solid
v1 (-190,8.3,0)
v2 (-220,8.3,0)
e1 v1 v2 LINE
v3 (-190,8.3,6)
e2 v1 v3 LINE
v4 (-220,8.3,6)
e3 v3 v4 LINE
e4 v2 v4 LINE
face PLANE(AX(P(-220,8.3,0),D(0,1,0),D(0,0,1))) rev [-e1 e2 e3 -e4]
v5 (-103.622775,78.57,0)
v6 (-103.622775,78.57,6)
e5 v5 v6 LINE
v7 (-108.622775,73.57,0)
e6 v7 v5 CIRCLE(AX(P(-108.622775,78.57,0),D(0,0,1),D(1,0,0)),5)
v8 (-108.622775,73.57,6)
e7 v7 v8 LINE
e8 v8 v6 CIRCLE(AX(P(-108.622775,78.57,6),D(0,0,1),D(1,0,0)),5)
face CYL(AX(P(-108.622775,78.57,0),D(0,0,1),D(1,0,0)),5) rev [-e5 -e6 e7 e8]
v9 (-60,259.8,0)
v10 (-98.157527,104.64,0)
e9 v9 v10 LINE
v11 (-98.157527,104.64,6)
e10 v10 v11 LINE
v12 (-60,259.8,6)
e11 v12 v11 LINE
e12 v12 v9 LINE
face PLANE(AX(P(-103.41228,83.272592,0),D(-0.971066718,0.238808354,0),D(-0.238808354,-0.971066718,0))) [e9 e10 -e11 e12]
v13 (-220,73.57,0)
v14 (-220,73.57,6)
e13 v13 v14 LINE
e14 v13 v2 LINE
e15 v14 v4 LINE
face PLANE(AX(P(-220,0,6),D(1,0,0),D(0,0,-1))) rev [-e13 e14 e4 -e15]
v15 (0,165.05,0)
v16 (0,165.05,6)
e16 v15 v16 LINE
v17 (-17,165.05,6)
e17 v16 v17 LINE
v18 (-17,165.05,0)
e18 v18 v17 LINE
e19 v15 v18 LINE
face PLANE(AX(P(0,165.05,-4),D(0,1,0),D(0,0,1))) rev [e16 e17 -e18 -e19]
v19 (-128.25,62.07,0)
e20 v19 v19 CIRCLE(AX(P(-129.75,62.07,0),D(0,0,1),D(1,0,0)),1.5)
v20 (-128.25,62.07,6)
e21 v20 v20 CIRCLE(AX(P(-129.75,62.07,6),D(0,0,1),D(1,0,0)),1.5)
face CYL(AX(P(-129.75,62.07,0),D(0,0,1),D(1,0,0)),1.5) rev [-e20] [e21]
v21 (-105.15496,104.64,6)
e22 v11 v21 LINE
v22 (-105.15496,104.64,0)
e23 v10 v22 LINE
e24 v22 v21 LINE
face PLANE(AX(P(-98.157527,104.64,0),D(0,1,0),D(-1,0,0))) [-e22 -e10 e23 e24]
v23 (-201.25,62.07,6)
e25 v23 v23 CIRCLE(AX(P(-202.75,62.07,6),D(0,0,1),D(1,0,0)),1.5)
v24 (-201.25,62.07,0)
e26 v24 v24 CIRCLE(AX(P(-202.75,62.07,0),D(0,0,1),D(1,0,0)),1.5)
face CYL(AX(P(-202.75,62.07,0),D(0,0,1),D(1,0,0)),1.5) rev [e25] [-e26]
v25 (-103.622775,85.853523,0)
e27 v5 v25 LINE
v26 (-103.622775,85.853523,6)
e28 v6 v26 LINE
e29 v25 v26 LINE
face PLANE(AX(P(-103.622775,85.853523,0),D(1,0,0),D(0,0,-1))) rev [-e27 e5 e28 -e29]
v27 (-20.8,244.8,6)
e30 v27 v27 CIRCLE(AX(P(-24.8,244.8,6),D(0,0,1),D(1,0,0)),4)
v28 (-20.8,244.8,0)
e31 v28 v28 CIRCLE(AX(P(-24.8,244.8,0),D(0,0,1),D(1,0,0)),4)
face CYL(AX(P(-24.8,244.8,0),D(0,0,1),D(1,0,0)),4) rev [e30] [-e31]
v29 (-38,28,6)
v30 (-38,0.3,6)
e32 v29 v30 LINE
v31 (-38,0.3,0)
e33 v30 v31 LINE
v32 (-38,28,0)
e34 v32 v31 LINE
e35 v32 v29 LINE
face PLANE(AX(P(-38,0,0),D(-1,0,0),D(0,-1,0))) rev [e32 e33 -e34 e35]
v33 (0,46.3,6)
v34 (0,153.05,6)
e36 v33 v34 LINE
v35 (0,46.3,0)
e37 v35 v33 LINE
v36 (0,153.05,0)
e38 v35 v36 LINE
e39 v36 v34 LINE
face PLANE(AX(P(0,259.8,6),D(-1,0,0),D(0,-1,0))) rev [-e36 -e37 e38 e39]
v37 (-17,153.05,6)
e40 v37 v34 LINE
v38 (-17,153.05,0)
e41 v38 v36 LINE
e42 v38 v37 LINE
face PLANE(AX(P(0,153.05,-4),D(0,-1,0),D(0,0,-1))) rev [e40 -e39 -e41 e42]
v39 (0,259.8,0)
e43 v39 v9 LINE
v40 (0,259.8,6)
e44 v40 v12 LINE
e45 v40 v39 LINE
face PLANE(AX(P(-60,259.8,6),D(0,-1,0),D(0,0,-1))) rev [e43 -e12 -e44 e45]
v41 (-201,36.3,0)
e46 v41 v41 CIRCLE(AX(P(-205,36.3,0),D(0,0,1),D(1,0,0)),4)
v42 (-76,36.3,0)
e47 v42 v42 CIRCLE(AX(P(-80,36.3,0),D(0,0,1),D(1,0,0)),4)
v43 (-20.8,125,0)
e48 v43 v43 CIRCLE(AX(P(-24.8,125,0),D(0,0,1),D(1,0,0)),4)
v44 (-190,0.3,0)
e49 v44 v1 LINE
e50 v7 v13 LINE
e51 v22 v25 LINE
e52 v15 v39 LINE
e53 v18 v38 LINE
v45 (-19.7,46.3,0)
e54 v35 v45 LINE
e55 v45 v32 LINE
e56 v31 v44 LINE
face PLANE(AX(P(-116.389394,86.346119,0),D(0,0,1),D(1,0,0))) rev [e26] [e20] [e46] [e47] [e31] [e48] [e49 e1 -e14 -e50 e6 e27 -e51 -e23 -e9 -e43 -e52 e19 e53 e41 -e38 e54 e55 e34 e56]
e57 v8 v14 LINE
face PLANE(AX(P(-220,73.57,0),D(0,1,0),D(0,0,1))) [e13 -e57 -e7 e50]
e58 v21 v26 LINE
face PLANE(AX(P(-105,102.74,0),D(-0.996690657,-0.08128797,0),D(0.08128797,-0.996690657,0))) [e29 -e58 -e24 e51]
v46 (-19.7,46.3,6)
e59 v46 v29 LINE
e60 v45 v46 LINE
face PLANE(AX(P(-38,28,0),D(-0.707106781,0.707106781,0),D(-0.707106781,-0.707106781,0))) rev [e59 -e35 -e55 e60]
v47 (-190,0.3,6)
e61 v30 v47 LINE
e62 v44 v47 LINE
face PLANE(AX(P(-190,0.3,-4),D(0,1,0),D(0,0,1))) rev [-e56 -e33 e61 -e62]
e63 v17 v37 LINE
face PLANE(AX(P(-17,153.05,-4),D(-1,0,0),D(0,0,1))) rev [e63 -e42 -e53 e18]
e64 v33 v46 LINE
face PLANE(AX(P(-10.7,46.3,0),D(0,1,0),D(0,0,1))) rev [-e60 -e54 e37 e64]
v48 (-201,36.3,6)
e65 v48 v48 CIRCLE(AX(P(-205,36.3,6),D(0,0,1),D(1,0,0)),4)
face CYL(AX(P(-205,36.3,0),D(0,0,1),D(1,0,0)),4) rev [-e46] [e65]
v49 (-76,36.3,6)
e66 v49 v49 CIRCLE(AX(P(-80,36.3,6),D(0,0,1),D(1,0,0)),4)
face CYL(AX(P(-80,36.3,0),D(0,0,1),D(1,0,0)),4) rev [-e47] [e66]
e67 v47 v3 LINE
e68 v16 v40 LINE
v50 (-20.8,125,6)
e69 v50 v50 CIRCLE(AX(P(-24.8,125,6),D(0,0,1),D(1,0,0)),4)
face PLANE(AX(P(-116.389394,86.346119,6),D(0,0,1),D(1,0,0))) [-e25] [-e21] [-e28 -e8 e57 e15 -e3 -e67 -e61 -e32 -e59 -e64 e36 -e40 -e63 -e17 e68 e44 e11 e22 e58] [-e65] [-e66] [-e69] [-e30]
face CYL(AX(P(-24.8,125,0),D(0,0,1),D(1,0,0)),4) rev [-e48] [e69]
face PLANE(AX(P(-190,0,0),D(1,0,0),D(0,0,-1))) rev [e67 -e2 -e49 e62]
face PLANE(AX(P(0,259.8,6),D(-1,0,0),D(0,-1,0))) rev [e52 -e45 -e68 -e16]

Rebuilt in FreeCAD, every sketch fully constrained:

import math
import FreeCAD as App
import Part
import Sketcher
Q = App.Units.Quantity


def add_polygon(sketch, points):
    """Adds a closed chain of lines whose ends are joined by coincident constraints."""
    first, n = sketch.GeometryCount, len(points)
    for a, b in zip(points, points[1:] + points[:1]):
        sketch.addGeometry(Part.LineSegment(App.Vector(*a, 0), App.Vector(*b, 0)), False)
    for i in range(n):
        sketch.addConstraint(Sketcher.Constraint("Coincident", first + i, 2, first + (i + 1) % n, 1))

doc = App.newDocument("Part")
body = doc.addObject("PartDesign::Body", "Body")

sketch1 = body.newObject("Sketcher::SketchObject", "Sketch")
sketch1.AttachmentSupport = (doc.getObject("XY_Plane"), [""])
sketch1.MapMode = "FlatFace"
sketch1.addGeometry([
    Part.LineSegment(App.Vector(-220, 0, 0), App.Vector(0, 0, 0)),
    Part.LineSegment(App.Vector(0, 0, 0), App.Vector(0, 260, 0)),
    Part.LineSegment(App.Vector(0, 260, 0), App.Vector(-60, 260, 0)),
    Part.LineSegment(App.Vector(-60, 260, 0), App.Vector(-102, 83, 0)),
    Part.ArcOfCircle(Part.Circle(App.Vector(-116, 86, 0), App.Vector(0, 0, 1), 15), math.radians(-90), math.radians(-13)),
    Part.LineSegment(App.Vector(-116, 71, 0), App.Vector(-220, 71, 0)),
    Part.LineSegment(App.Vector(-220, 71, 0), App.Vector(-220, 0, 0)),
], False)
sketch1.addConstraint([
    Sketcher.Constraint("Coincident", 0, 2, 1, 1),
    Sketcher.Constraint("Coincident", 1, 2, 2, 1),
    Sketcher.Constraint("Coincident", 2, 2, 3, 1),
    Sketcher.Constraint("Tangent", 3, 2, 4, 2),
    Sketcher.Constraint("Tangent", 4, 1, 5, 1),
    Sketcher.Constraint("Coincident", 5, 2, 6, 1),
    Sketcher.Constraint("Coincident", 6, 2, 0, 1),
    Sketcher.Constraint("Horizontal", 0),
    Sketcher.Constraint("Vertical", 1),
    Sketcher.Constraint("Horizontal", 2),
    Sketcher.Constraint("Horizontal", 5),
    Sketcher.Constraint("Vertical", 6),
    Sketcher.Constraint("Coincident", 0, 2, -1, 1),
    Sketcher.Constraint("DistanceX", 0, 1, 0, 2, 220.0),
    Sketcher.Constraint("DistanceX", 2, 2, 2, 1, 60.0),
    Sketcher.Constraint("DistanceY", 1, 1, 1, 2, 259.8),
    Sketcher.Constraint("DistanceY", 6, 2, 6, 1, 71.45),
    Sketcher.Constraint("Radius", 4, 14.896119),
    Sketcher.Constraint("DistanceX", 5, 2, 5, 1, 103.610606),
])
pad1 = body.newObject("PartDesign::Pad", "Pad")
pad1.Profile = sketch1
pad1.Length = 6

sketch2 = body.newObject("Sketcher::SketchObject", "Sketch001")
sketch2.AttachmentSupport = (doc.getObject("XY_Plane"), [""])
sketch2.MapMode = "FlatFace"
sketch2.AttachmentOffset = App.Placement(App.Vector(0, 0, 6), App.Rotation())
sketch2.addGeometry(Part.Circle(App.Vector(-205, 36.3, 0), App.Vector(0, 0, 1), 4), False)
sketch2.addGeometry(Part.Circle(App.Vector(-24.8, 244.8, 0), App.Vector(0, 0, 1), 4), False)
sketch2.addGeometry(Part.Circle(App.Vector(-24.8, 125, 0), App.Vector(0, 0, 1), 4), False)
sketch2.addGeometry(Part.Circle(App.Vector(-80, 43.8, 0), App.Vector(0, 0, 1), 4), False)
add_polygon(sketch2, [(-220, 8.3), (-220, 0), (-190, 0), (-190, 8.3)])
add_polygon(sketch2, [(-38, 19), (-38, 0), (0, 0), (0, 46.3), (-10.7, 46.3)])
sketch2.addConstraint([
    Sketcher.Constraint("Vertical", 4),
    Sketcher.Constraint("Horizontal", 5),
    Sketcher.Constraint("Vertical", 6),
    Sketcher.Constraint("Horizontal", 7),
    Sketcher.Constraint("Vertical", 8),
    Sketcher.Constraint("Horizontal", 9),
    Sketcher.Constraint("Vertical", 10),
    Sketcher.Constraint("Horizontal", 11),
    Sketcher.Constraint("Coincident", 9, 2, -1, 1),
    Sketcher.Constraint("Equal", 0, 1),
    Sketcher.Constraint("Equal", 1, 2),
    Sketcher.Constraint("Equal", 2, 3),
    Sketcher.Constraint("PointOnObject", 4, 2, -1),
    Sketcher.Constraint("Vertical", 1, 3, 2, 3),
    Sketcher.Constraint("Diameter", 0, 8.0),
    Sketcher.Constraint("DistanceX", 5, 1, 5, 2, 30.0),
    Sketcher.Constraint("DistanceX", 9, 1, 9, 2, 38.0),
    Sketcher.Constraint("DistanceY", 8, 2, 8, 1, 19.0),
    Sketcher.Constraint("Angle", 12, Q("-135 deg")),
    Sketcher.Constraint("DistanceX", 11, 2, 11, 1, 10.7),
    Sketcher.Constraint("DistanceY", 4, 2, 4, 1, 8.3),
    Sketcher.Constraint("DistanceX", 0, 3, -1, 1, 205.0),
    Sketcher.Constraint("DistanceY", -1, 1, 2, 3, 125.0),
    Sketcher.Constraint("DistanceX", 3, 3, -1, 1, 80.0),
    Sketcher.Constraint("DistanceX", 4, 2, -1, 1, 220.0),
    Sketcher.Constraint("DistanceY", 3, 3, 1, 3, 201.0),
    Sketcher.Constraint("DistanceY", 6, 2, 0, 3, 28.0),
    Sketcher.Constraint("DistanceX", 1, 3, -1, 1, 24.8),
    Sketcher.Constraint("DistanceY", -1, 1, 1, 3, 244.8),
])
pocket1 = body.newObject("PartDesign::Pocket", "Pocket")
pocket1.Profile = sketch2
pocket1.Type = "ThroughAll"

sketch3 = body.newObject("Sketcher::SketchObject", "Sketch002")
sketch3.AttachmentSupport = (doc.getObject("XY_Plane"), [""])
sketch3.MapMode = "FlatFace"
sketch3.AttachmentOffset = App.Placement(App.Vector(0, 0, 6), App.Rotation())
add_polygon(sketch3, [(-220, 73), (-220, 71.5), (-116.4, 71.5), (-116.4, 73)])
sketch3.addConstraint([
    Sketcher.Constraint("Vertical", 0),
    Sketcher.Constraint("Horizontal", 1),
    Sketcher.Constraint("Vertical", 2),
    Sketcher.Constraint("Horizontal", 3),
    Sketcher.Constraint("DistanceX", 0, 2, -1, 1, 220.0),
    Sketcher.Constraint("DistanceY", 0, 2, 0, 1, 1.56),
    Sketcher.Constraint("DistanceY", -1, 1, 0, 2, 71.45),
    Sketcher.Constraint("DistanceX", 1, 1, 1, 2, 103.610606),
])
pad2 = body.newObject("PartDesign::Pad", "Pad001")
pad2.Profile = sketch3
pad2.Length = 6
pad2.Reversed = True

sketch4 = body.newObject("Sketcher::SketchObject", "Sketch003")
sketch4.AttachmentSupport = (doc.getObject("XY_Plane"), [""])
sketch4.MapMode = "FlatFace"
sketch4.AttachmentOffset = App.Placement(App.Vector(0, 0, 6), App.Rotation())
add_polygon(sketch4, [(-103.4, 83.3), (-101.9, 82.9), (-60, 259.8)])
sketch4.addConstraint([
    Sketcher.Constraint("Perpendicular", 0, 1),
    Sketcher.Constraint("DistanceX", 1, 2, -1, 1, 60.0),
    Sketcher.Constraint("DistanceY", -1, 1, 1, 2, 259.8),
    Sketcher.Constraint("Distance", 0, 1.56),
    Sketcher.Constraint("DistanceX", 2, 2, -1, 1, 103.41228),
    Sketcher.Constraint("DistanceY", -1, 1, 2, 2, 83.272592),
])
pad3 = body.newObject("PartDesign::Pad", "Pad002")
pad3.Profile = sketch4
pad3.Length = 6
pad3.Reversed = True

sketch5 = body.newObject("Sketcher::SketchObject", "Sketch004")
sketch5.AttachmentSupport = (doc.getObject("XY_Plane"), [""])
sketch5.MapMode = "FlatFace"
sketch5.addGeometry([
    Part.LineSegment(App.Vector(-101.9, 82.9, 0), App.Vector(-103.4, 83.3, 0)),
    Part.ArcOfCircle(Part.Circle(App.Vector(-116.4, 86.3, 0), App.Vector(0, 0, 1), 13.3), math.radians(-90), math.radians(-13)),
    Part.LineSegment(App.Vector(-116.4, 73, 0), App.Vector(-116.4, 71.5, 0)),
    Part.ArcOfCircle(Part.Circle(App.Vector(-116.4, 86.3, 0), App.Vector(0, 0, 1), 14.9), math.radians(-90), math.radians(-13)),
], False)
sketch5.addConstraint([
    Sketcher.Constraint("Coincident", 0, 2, 1, 2),
    Sketcher.Constraint("Coincident", 1, 1, 2, 1),
    Sketcher.Constraint("Coincident", 2, 2, 3, 1),
    Sketcher.Constraint("Coincident", 3, 2, 0, 1),
    Sketcher.Constraint("Vertical", 2),
    Sketcher.Constraint("Coincident", 3, 3, 1, 3),
    Sketcher.Constraint("Vertical", 3, 3, 1, 1),
    Sketcher.Constraint("DistanceY", 2, 2, 2, 1, 1.56),
    Sketcher.Constraint("DistanceY", -1, 1, 1, 1, 73.01),
    Sketcher.Constraint("Radius", 1, 13.336119),
    Sketcher.Constraint("DistanceX", 0, 2, -1, 1, 103.41228),
    Sketcher.Constraint("DistanceY", -1, 1, 0, 2, 83.272592),
    Sketcher.Constraint("DistanceX", 1, 3, 3, 2, 14.495119),
])
pad4 = body.newObject("PartDesign::Pad", "Pad003")
pad4.Profile = sketch5
pad4.Length = 6

sketch6 = body.newObject("Sketcher::SketchObject", "Sketch005")
sketch6.AttachmentSupport = (doc.getObject("XY_Plane"), [""])
sketch6.MapMode = "FlatFace"
sketch6.AttachmentOffset = App.Placement(App.Vector(0, 0, 6), App.Rotation())
add_polygon(sketch6, [(-55, 103), (-105, 103), (-103, 83)])
sketch6.addConstraint([
    Sketcher.Constraint("Horizontal", 0),
    Sketcher.Constraint("DistanceX", 0, 2, 0, 1, 50.0),
    Sketcher.Constraint("DistanceX", 0, 2, -1, 1, 105.0),
    Sketcher.Constraint("DistanceY", -1, 1, 0, 2, 102.74),
    Sketcher.Constraint("DistanceX", 1, 2, -1, 1, 103.41228),
    Sketcher.Constraint("DistanceY", -1, 1, 1, 2, 83.272592),
])
pad5 = body.newObject("PartDesign::Pad", "Pad004")
pad5.Profile = sketch6
pad5.Length = 6
pad5.Reversed = True

sketch7 = body.newObject("Sketcher::SketchObject", "Sketch006")
sketch7.AttachmentSupport = (doc.getObject("XY_Plane"), [""])
sketch7.MapMode = "FlatFace"
sketch7.AttachmentOffset = App.Placement(App.Vector(0, 0, 6), App.Rotation())
add_polygon(sketch7, [(-98.2, 104.6), (-105.2, 104.6), (-105, 102.7), (-98.6, 102.7)])
sketch7.addConstraint([
    Sketcher.Constraint("Horizontal", 0),
    Sketcher.Constraint("Horizontal", 2),
    Sketcher.Constraint("DistanceX", 1, 2, -1, 1, 105.0),
    Sketcher.Constraint("DistanceY", 1, 2, 0, 2, 1.9),
    Sketcher.Constraint("DistanceY", -1, 1, 0, 2, 104.64),
    Sketcher.Constraint("DistanceX", 2, 1, 2, 2, 6.375218),
    Sketcher.Constraint("Distance", 1, 1.906309),
    Sketcher.Constraint("Distance", 3, 1.956611),
])
pad6 = body.newObject("PartDesign::Pad", "Pad005")
pad6.Profile = sketch7
pad6.Length = 6
pad6.Reversed = True

sketch8 = body.newObject("Sketcher::SketchObject", "Sketch007")
sketch8.AttachmentSupport = (doc.getObject("XY_Plane"), [""])
sketch8.MapMode = "FlatFace"
sketch8.AttachmentOffset = App.Placement(App.Vector(0, 0, 6), App.Rotation())
add_polygon(sketch8, [(-220, 73.6), (-220, 73), (-116.4, 73), (-116.4, 73.6)])
sketch8.addConstraint([
    Sketcher.Constraint("Vertical", 0),
    Sketcher.Constraint("Horizontal", 1),
    Sketcher.Constraint("Vertical", 2),
    Sketcher.Constraint("Horizontal", 3),
    Sketcher.Constraint("DistanceX", 0, 2, -1, 1, 220.0),
    Sketcher.Constraint("DistanceY", 0, 2, 0, 1, 0.56),
    Sketcher.Constraint("DistanceY", -1, 1, 0, 2, 73.01),
    Sketcher.Constraint("DistanceX", 1, 1, 1, 2, 103.610606),
])
pad7 = body.newObject("PartDesign::Pad", "Pad006")
pad7.Profile = sketch8
pad7.Length = 6
pad7.Reversed = True

sketch9 = body.newObject("Sketcher::SketchObject", "Sketch008")
sketch9.AttachmentSupport = (doc.getObject("XY_Plane"), [""])
sketch9.MapMode = "FlatFace"
sketch9.AttachmentOffset = App.Placement(App.Vector(0, 0, 6), App.Rotation())
sketch9.addGeometry([
    Part.LineSegment(App.Vector(-116.4, 73.6, 0), App.Vector(-118, 71.7, 0)),
    Part.LineSegment(App.Vector(-118, 71.7, 0), App.Vector(-105.4, 73.1, 0)),
    Part.LineSegment(App.Vector(-105.4, 73.1, 0), App.Vector(-100.7, 83.4, 0)),
    Part.LineSegment(App.Vector(-100.7, 83.4, 0), App.Vector(-103.6, 85.9, 0)),
    Part.ArcOfCircle(Part.Circle(App.Vector(-116.4, 86.3, 0), App.Vector(0, 0, 1), 12.8), math.radians(-90), math.radians(-2)),
], False)
sketch9.addConstraint([
    Sketcher.Constraint("Coincident", 0, 2, 1, 1),
    Sketcher.Constraint("Coincident", 1, 2, 2, 1),
    Sketcher.Constraint("Coincident", 2, 2, 3, 1),
    Sketcher.Constraint("Coincident", 3, 2, 4, 2),
    Sketcher.Constraint("Coincident", 4, 1, 0, 1),
    Sketcher.Constraint("DistanceY", -1, 1, 4, 1, 73.57),
    Sketcher.Constraint("Radius", 4, 12.776119),
    Sketcher.Constraint("DistanceY", 1, 2, 4, 3, 13.288402),
    Sketcher.Constraint("Distance", 1, 12.68628),
    Sketcher.Constraint("Distance", 3, 3.84471),
    Sketcher.Constraint("DistanceX", 1, 2, -1, 1, 105.380568),
    Sketcher.Constraint("DistanceX", 0, 2, 4, 3, 1.599411),
    Sketcher.Constraint("DistanceY", 1, 2, 2, 2, 10.31583),
    Sketcher.Constraint("DistanceX", 4, 3, 2, 2, 15.704561),
    Sketcher.Constraint("DistanceY", 0, 2, 3, 2, 14.20083),
    Sketcher.Constraint("DistanceX", 0, 2, 4, 1, 1.599411),
])
pad8 = body.newObject("PartDesign::Pad", "Pad007")
pad8.Profile = sketch9
pad8.Length = 6
pad8.Reversed = True

sketch10 = body.newObject("Sketcher::SketchObject", "Sketch009")
sketch10.AttachmentSupport = (doc.getObject("XY_Plane"), [""])
sketch10.MapMode = "FlatFace"
sketch10.AttachmentOffset = App.Placement(App.Vector(0, 0, 6), App.Rotation())
sketch10.addGeometry([
    Part.Circle(App.Vector(-202.8, 62.1, 0), App.Vector(0, 0, 1), 1.5),
    Part.Circle(App.Vector(-129.8, 62.1, 0), App.Vector(0, 0, 1), 1.5),
], False)
sketch10.addConstraint([
    Sketcher.Constraint("Equal", 0, 1),
    Sketcher.Constraint("Horizontal", 0, 3, 1, 3),
    Sketcher.Constraint("Diameter", 0, 3.0),
    Sketcher.Constraint("DistanceX", 0, 3, 1, 3, 73.0),
    Sketcher.Constraint("DistanceX", 0, 3, -1, 1, 202.75),
    Sketcher.Constraint("DistanceY", -1, 1, 0, 3, 62.07),
])
pocket2 = body.newObject("PartDesign::Pocket", "Pocket001")
pocket2.Profile = sketch10
pocket2.Type = "ThroughAll"

sketch11 = body.newObject("Sketcher::SketchObject", "Sketch010")
sketch11.AttachmentSupport = (doc.getObject("XY_Plane"), [""])
sketch11.MapMode = "FlatFace"
sketch11.AttachmentOffset = App.Placement(App.Vector(0, 0, 6), App.Rotation())
sketch11.addGeometry([
    Part.LineSegment(App.Vector(-104, 79, 0), App.Vector(-104, 86, 0)),
    Part.ArcOfCircle(Part.Circle(App.Vector(-116, 86, 0), App.Vector(0, 0, 1), 13), math.radians(-90), math.radians(-2)),
    Part.LineSegment(App.Vector(-116, 74, 0), App.Vector(-109, 74, 0)),
    Part.ArcOfCircle(Part.Circle(App.Vector(-109, 79, 0), App.Vector(0, 0, 1), 5), math.radians(-90), math.radians(0)),
], False)
sketch11.addConstraint([
    Sketcher.Constraint("Coincident", 0, 2, 1, 2),
    Sketcher.Constraint("Tangent", 1, 1, 2, 1),
    Sketcher.Constraint("Tangent", 2, 2, 3, 1),
    Sketcher.Constraint("Tangent", 3, 2, 0, 1),
    Sketcher.Constraint("Vertical", 0),
    Sketcher.Constraint("Horizontal", 2),
    Sketcher.Constraint("Radius", 3, 5.0),
    Sketcher.Constraint("DistanceY", -1, 1, 3, 3, 78.57),
    Sketcher.Constraint("Radius", 1, 12.776119),
    Sketcher.Constraint("DistanceX", 2, 1, 2, 2, 7.766619),
    Sketcher.Constraint("DistanceX", 1, 3, -1, 1, 116.389394),
])
pocket3 = body.newObject("PartDesign::Pocket", "Pocket002")
pocket3.Profile = sketch11
pocket3.Type = "ThroughAll"

sketch12 = body.newObject("Sketcher::SketchObject", "Sketch011")
sketch12.AttachmentSupport = (doc.getObject("XY_Plane"), [""])
sketch12.MapMode = "FlatFace"
sketch12.AttachmentOffset = App.Placement(App.Vector(0, 0, 6), App.Rotation())
add_polygon(sketch12, [(-190, 0.3), (-190, 0), (-38, 0), (-38, 0.3)])
sketch12.addConstraint([
    Sketcher.Constraint("Vertical", 0),
    Sketcher.Constraint("Horizontal", 1),
    Sketcher.Constraint("Vertical", 2),
    Sketcher.Constraint("Horizontal", 3),
    Sketcher.Constraint("PointOnObject", 0, 2, -1),
    Sketcher.Constraint("DistanceX", 1, 1, 1, 2, 152.0),
    Sketcher.Constraint("DistanceY", 0, 2, 0, 1, 0.3),
    Sketcher.Constraint("DistanceX", 0, 2, -1, 1, 190.0),
])
pocket4 = body.newObject("PartDesign::Pocket", "Pocket003")
pocket4.Profile = sketch12
pocket4.Length = 10

sketch13 = body.newObject("Sketcher::SketchObject", "Sketch012")
sketch13.AttachmentSupport = (doc.getObject("XY_Plane"), [""])
sketch13.MapMode = "FlatFace"
sketch13.AttachmentOffset = App.Placement(App.Vector(0, 0, 6), App.Rotation())
add_polygon(sketch13, [(-11, 46), (-20, 46), (-38, 28), (-38, 19)])
sketch13.addConstraint([
    Sketcher.Constraint("Horizontal", 0),
    Sketcher.Constraint("Vertical", 2),
    Sketcher.Constraint("Parallel", 1, 3),
    Sketcher.Constraint("Equal", 0, 2),
    Sketcher.Constraint("DistanceX", 0, 2, 0, 1, 9.0),
    Sketcher.Constraint("DistanceX", 1, 2, -1, 1, 38.0),
    Sketcher.Constraint("DistanceY", -1, 1, 1, 2, 28.0),
    Sketcher.Constraint("DistanceX", 0, 2, -1, 1, 19.7),
])
pocket5 = body.newObject("PartDesign::Pocket", "Pocket004")
pocket5.Profile = sketch13
pocket5.Length = 6

sketch14 = body.newObject("Sketcher::SketchObject", "Sketch013")
sketch14.AttachmentSupport = (doc.getObject("XY_Plane"), [""])
sketch14.MapMode = "FlatFace"
sketch14.AttachmentOffset = App.Placement(App.Vector(0, 0, 6), App.Rotation())
sketch14.addGeometry(Part.Circle(App.Vector(-80, 36.3, 0), App.Vector(0, 0, 1), 4), False)
sketch14.addConstraint([
    Sketcher.Constraint("Diameter", 0, 8.0),
    Sketcher.Constraint("DistanceX", 0, 3, -1, 1, 80.0),
    Sketcher.Constraint("DistanceY", -1, 1, 0, 3, 36.3),
])
pocket6 = body.newObject("PartDesign::Pocket", "Pocket005")
pocket6.Profile = sketch14
pocket6.Length = 6

sketch15 = body.newObject("Sketcher::SketchObject", "Sketch014")
sketch15.AttachmentSupport = (doc.getObject("XY_Plane"), [""])
sketch15.MapMode = "FlatFace"
sketch15.AttachmentOffset = App.Placement(App.Vector(0, 0, 6), App.Rotation())
sketch15.addGeometry([
    Part.ArcOfCircle(Part.Circle(App.Vector(-80, 43.8, 0), App.Vector(0, 0, 1), 4), math.radians(-70), math.radians(0)),
    Part.ArcOfCircle(Part.Circle(App.Vector(-80, 43.8, 0), App.Vector(0, 0, 1), 4), math.radians(0), math.radians(250)),
    Part.ArcOfCircle(Part.Circle(App.Vector(-80, 36.3, 0), App.Vector(0, 0, 1), 4), math.radians(70), math.radians(110)),
], False)
sketch15.addConstraint([
    Sketcher.Constraint("Tangent", 0, 2, 1, 1),
    Sketcher.Constraint("Coincident", 1, 2, 2, 2),
    Sketcher.Constraint("Coincident", 2, 1, 0, 1),
    Sketcher.Constraint("Equal", 0, 1),
    Sketcher.Constraint("Equal", 1, 2),
    Sketcher.Constraint("Horizontal", 1, 3, 0, 2),
    Sketcher.Constraint("Horizontal", 1, 2, 2, 1),
    Sketcher.Constraint("Radius", 0, 4.0),
    Sketcher.Constraint("DistanceX", 0, 3, -1, 1, 80.0),
    Sketcher.Constraint("DistanceY", -1, 1, 0, 3, 43.8),
    Sketcher.Constraint("DistanceY", -1, 1, 2, 3, 36.3),
])
pad9 = body.newObject("PartDesign::Pad", "Pad008")
pad9.Profile = sketch15
pad9.Length = 6
pad9.Reversed = True

sketch16 = body.newObject("Sketcher::SketchObject", "Sketch015")
sketch16.AttachmentSupport = (doc.getObject("XY_Plane"), [""])
sketch16.MapMode = "FlatFace"
sketch16.AttachmentOffset = App.Placement(App.Vector(0, 0, 6), App.Rotation())
add_polygon(sketch16, [(-17, 165), (-17, 153), (0, 153), (0, 165)])
sketch16.addConstraint([
    Sketcher.Constraint("Vertical", 0),
    Sketcher.Constraint("Horizontal", 1),
    Sketcher.Constraint("Vertical", 2),
    Sketcher.Constraint("Horizontal", 3),
    Sketcher.Constraint("PointOnObject", 1, 2, -2),
    Sketcher.Constraint("DistanceX", 1, 1, 1, 2, 17.0),
    Sketcher.Constraint("DistanceY", 0, 2, 0, 1, 12.0),
    Sketcher.Constraint("DistanceY", -1, 1, 0, 2, 153.05),
])
pocket7 = body.newObject("PartDesign::Pocket", "Pocket006")
pocket7.Profile = sketch16
pocket7.Length = 10

doc.recompute()
